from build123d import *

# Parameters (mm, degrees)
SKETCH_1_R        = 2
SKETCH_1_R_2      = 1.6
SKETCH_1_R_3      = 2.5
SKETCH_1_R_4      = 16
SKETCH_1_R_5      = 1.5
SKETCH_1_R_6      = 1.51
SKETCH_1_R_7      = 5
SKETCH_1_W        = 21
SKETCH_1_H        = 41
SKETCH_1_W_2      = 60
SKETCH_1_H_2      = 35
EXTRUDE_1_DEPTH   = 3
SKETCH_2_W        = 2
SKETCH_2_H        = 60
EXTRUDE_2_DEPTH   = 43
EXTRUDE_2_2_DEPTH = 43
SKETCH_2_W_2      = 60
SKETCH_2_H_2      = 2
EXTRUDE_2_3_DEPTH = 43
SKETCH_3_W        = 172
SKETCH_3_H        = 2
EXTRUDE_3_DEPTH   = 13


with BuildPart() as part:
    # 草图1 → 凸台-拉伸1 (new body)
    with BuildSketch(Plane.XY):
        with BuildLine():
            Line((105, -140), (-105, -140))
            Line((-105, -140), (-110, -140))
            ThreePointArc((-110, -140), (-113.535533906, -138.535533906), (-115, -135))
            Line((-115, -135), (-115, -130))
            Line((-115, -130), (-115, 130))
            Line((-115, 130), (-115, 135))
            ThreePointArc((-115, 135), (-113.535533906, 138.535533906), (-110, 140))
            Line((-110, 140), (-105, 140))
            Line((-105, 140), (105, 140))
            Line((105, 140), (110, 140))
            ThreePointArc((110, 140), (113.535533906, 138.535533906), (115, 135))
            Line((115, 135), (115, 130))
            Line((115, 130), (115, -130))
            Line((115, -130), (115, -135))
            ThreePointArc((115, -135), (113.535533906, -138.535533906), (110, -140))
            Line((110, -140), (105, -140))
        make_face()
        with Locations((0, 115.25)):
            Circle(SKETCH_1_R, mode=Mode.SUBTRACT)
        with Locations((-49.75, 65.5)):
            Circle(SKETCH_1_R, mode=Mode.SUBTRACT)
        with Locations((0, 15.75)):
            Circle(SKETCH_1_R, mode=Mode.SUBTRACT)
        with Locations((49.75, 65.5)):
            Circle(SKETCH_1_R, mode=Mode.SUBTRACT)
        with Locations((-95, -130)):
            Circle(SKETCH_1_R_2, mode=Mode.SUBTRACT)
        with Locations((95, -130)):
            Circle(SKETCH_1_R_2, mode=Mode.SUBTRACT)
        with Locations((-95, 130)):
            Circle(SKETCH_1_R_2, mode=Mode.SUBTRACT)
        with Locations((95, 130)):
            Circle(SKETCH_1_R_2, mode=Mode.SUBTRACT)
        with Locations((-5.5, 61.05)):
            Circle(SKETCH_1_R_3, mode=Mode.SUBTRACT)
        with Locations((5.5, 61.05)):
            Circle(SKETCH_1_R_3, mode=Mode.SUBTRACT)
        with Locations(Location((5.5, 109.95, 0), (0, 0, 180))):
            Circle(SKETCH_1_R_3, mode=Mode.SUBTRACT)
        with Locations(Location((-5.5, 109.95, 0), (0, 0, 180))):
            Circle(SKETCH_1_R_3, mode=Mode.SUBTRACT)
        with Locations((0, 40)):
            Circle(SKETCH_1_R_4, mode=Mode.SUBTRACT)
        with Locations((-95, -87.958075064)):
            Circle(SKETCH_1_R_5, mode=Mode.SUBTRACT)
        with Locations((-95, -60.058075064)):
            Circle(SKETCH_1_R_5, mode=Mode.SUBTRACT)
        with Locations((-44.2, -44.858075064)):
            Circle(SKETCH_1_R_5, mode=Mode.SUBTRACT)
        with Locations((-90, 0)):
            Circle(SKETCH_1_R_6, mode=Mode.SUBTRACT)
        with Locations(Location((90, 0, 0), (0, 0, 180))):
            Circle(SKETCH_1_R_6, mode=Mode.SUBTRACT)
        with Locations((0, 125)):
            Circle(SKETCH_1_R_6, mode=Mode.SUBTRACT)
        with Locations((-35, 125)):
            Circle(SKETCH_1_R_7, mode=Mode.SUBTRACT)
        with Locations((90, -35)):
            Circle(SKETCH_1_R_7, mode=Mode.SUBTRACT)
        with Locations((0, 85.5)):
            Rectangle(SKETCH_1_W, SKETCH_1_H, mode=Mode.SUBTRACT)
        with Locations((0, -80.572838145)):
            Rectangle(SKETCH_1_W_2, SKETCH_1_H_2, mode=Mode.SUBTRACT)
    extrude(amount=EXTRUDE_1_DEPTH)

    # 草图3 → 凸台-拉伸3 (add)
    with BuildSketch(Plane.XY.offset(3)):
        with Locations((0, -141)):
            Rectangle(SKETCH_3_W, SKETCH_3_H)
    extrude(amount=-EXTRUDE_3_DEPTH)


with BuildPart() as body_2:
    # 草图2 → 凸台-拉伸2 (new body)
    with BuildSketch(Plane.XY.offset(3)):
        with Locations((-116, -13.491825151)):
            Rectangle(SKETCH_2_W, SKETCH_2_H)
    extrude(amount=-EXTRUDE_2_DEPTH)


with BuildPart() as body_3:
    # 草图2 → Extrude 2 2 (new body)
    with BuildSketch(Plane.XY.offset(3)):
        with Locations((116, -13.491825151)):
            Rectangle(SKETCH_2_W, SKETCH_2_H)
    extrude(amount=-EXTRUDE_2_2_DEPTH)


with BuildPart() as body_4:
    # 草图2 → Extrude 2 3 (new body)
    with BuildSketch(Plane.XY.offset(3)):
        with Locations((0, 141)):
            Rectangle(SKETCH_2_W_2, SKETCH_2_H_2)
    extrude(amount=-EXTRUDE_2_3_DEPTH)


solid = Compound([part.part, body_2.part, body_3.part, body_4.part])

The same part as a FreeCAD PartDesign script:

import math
import FreeCAD as App
import Part
import Sketcher

doc = App.newDocument("Part")
params = doc.addObject("Spreadsheet::Sheet", "Params")
for row, (alias, value) in enumerate([
    ("sketch1_diameter", "10 mm"),
    ("sketch1_diameter2", "3 mm"),
    ("sketch1_diameter3", "4 mm"),
    ("sketch1_diameter4", "32 mm"),
    ("sketch1_diameter5", "5 mm"),
    ("pad1_length", "3 mm"),
    ("sketch2_width", "172 mm"),
    ("sketch2_height", "2 mm"),
    ("pad2_length", "13 mm"),
    ("sketch3_width", "2 mm"),
    ("sketch3_height", "60 mm"),
    ("pad3_length", "43 mm"),
    ("sketch4_width", "2 mm"),
    ("sketch4_height", "60 mm"),
    ("pad4_length", "43 mm"),
    ("sketch5_width", "60 mm"),
    ("sketch5_height", "2 mm"),
    ("pad5_length", "43 mm"),
], start=1):
    params.set(f"A{row}", alias)
    params.set(f"B{row}", "=" + value)
    params.setAlias(f"B{row}", alias)

body = doc.addObject("PartDesign::Body", "Body")

# Sketch on XY plane
sketch1 = body.newObject("Sketcher::SketchObject", "Sketch")
sketch1.AttachmentSupport = (doc.getObject("XY_Plane"), [""])
sketch1.MapMode = "FlatFace"
sketch1.addGeometry(Part.ArcOfCircle(Part.Circle(App.Vector(-110, -135, 0), App.Vector(0, 0, 1), 5), math.radians(180), math.radians(270)), False)
sketch1.addGeometry(Part.LineSegment(App.Vector(-110, -140, 0), App.Vector(110, -140, 0)), False)
sketch1.addGeometry(Part.ArcOfCircle(Part.Circle(App.Vector(110, -135, 0), App.Vector(0, 0, 1), 5), math.radians(-90), math.radians(0)), False)
sketch1.addGeometry(Part.LineSegment(App.Vector(115, -135, 0), App.Vector(115, 135, 0)), False)
sketch1.addGeometry(Part.ArcOfCircle(Part.Circle(App.Vector(110, 135, 0), App.Vector(0, 0, 1), 5), math.radians(0), math.radians(90)), False)
sketch1.addGeometry(Part.LineSegment(App.Vector(110, 140, 0), App.Vector(-110, 140, 0)), False)
sketch1.addGeometry(Part.ArcOfCircle(Part.Circle(App.Vector(-110, 135, 0), App.Vector(0, 0, 1), 5), math.radians(90), math.radians(180)), False)
sketch1.addGeometry(Part.LineSegment(App.Vector(-115, 135, 0), App.Vector(-115, -135, 0)), False)
sketch1.addGeometry(Part.Circle(App.Vector(95, -130, 0), App.Vector(0, 0, 1), 1.6), False)
sketch1.addGeometry(Part.LineSegment(App.Vector(-30, -98.072838, 0), App.Vector(-30, -63.072838, 0)), False)
sketch1.addGeometry(Part.LineSegment(App.Vector(-30, -63.072838, 0), App.Vector(30, -63.072838, 0)), False)
sketch1.addGeometry(Part.LineSegment(App.Vector(30, -63.072838, 0), App.Vector(30, -98.072838, 0)), False)
sketch1.addGeometry(Part.LineSegment(App.Vector(30, -98.072838, 0), App.Vector(-30, -98.072838, 0)), False)
sketch1.addGeometry(Part.Circle(App.Vector(90, -35, 0), App.Vector(0, 0, 1), 5), False)
sketch1.addGeometry(Part.Circle(App.Vector(-95, -130, 0), App.Vector(0, 0, 1), 1.6), False)
sketch1.addGeometry(Part.Circle(App.Vector(-95, -87.958075, 0), App.Vector(0, 0, 1), 1.5), False)
sketch1.addGeometry(Part.Circle(App.Vector(-44.2, -44.858075, 0), App.Vector(0, 0, 1), 1.5), False)
sketch1.addGeometry(Part.Circle(App.Vector(-95, -60.058075, 0), App.Vector(0, 0, 1), 1.5), False)
sketch1.addGeometry(Part.Circle(App.Vector(90, 0, 0), App.Vector(0, 0, 1), 1.51), False)
sketch1.addGeometry(Part.Circle(App.Vector(49.75, 65.5, 0), App.Vector(0, 0, 1), 2), False)
sketch1.addGeometry(Part.Circle(App.Vector(0, 15.75, 0), App.Vector(0, 0, 1), 2), False)
sketch1.addGeometry(Part.Circle(App.Vector(0, 40, 0), App.Vector(0, 0, 1), 16), False)
sketch1.addGeometry(Part.Circle(App.Vector(5.5, 61.05, 0), App.Vector(0, 0, 1), 2.5), False)
sketch1.addGeometry(Part.Circle(App.Vector(95, 130, 0), App.Vector(0, 0, 1), 1.6), False)
sketch1.addGeometry(Part.LineSegment(App.Vector(-10.5, 65, 0), App.Vector(-10.5, 106, 0)), False)
sketch1.addGeometry(Part.LineSegment(App.Vector(-10.5, 106, 0), App.Vector(10.5, 106, 0)), False)
sketch1.addGeometry(Part.LineSegment(App.Vector(10.5, 106, 0), App.Vector(10.5, 65, 0)), False)
sketch1.addGeometry(Part.LineSegment(App.Vector(10.5, 65, 0), App.Vector(-10.5, 65, 0)), False)
sketch1.addGeometry(Part.Circle(App.Vector(5.5, 109.95, 0), App.Vector(0, 0, 1), 2.5), False)
sketch1.addGeometry(Part.Circle(App.Vector(0, 115.25, 0), App.Vector(0, 0, 1), 2), False)
sketch1.addGeometry(Part.Circle(App.Vector(0, 125, 0), App.Vector(0, 0, 1), 1.51), False)
sketch1.addGeometry(Part.Circle(App.Vector(-5.5, 61.05, 0), App.Vector(0, 0, 1), 2.5), False)
sketch1.addGeometry(Part.Circle(App.Vector(-90, 0, 0), App.Vector(0, 0, 1), 1.51), False)
sketch1.addGeometry(Part.Circle(App.Vector(-49.75, 65.5, 0), App.Vector(0, 0, 1), 2), False)
sketch1.addGeometry(Part.Circle(App.Vector(-5.5, 109.95, 0), App.Vector(0, 0, 1), 2.5), False)
sketch1.addGeometry(Part.Circle(App.Vector(-35, 125, 0), App.Vector(0, 0, 1), 5), False)
sketch1.addGeometry(Part.Circle(App.Vector(-95, 130, 0), App.Vector(0, 0, 1), 1.6), False)
sketch1.addConstraint(Sketcher.Constraint("Tangent", 0, 2, 1, 1))
sketch1.addConstraint(Sketcher.Constraint("Tangent", 1, 2, 2, 1))
sketch1.addConstraint(Sketcher.Constraint("Tangent", 2, 2, 3, 1))
sketch1.addConstraint(Sketcher.Constraint("Tangent", 3, 2, 4, 1))
sketch1.addConstraint(Sketcher.Constraint("Tangent", 4, 2, 5, 1))
sketch1.addConstraint(Sketcher.Constraint("Tangent", 5, 2, 6, 1))
sketch1.addConstraint(Sketcher.Constraint("Tangent", 6, 2, 7, 1))
sketch1.addConstraint(Sketcher.Constraint("Tangent", 7, 2, 0, 1))
sketch1.addConstraint(Sketcher.Constraint("Coincident", 9, 2, 10, 1))
sketch1.addConstraint(Sketcher.Constraint("Coincident", 10, 2, 11, 1))
sketch1.addConstraint(Sketcher.Constraint("Coincident", 11, 2, 12, 1))
sketch1.addConstraint(Sketcher.Constraint("Coincident", 12, 2, 9, 1))
sketch1.addConstraint(Sketcher.Constraint("Coincident", 24, 2, 25, 1))
sketch1.addConstraint(Sketcher.Constraint("Coincident", 25, 2, 26, 1))
sketch1.addConstraint(Sketcher.Constraint("Coincident", 26, 2, 27, 1))
sketch1.addConstraint(Sketcher.Constraint("Coincident", 27, 2, 24, 1))
sketch1.addConstraint(Sketcher.Constraint("Horizontal", 1))
sketch1.addConstraint(Sketcher.Constraint("Vertical", 3))
sketch1.addConstraint(Sketcher.Constraint("Horizontal", 5))
sketch1.addConstraint(Sketcher.Constraint("Vertical", 7))
sketch1.addConstraint(Sketcher.Constraint("Vertical", 9))
sketch1.addConstraint(Sketcher.Constraint("Horizontal", 10))
sketch1.addConstraint(Sketcher.Constraint("Vertical", 11))
sketch1.addConstraint(Sketcher.Constraint("Horizontal", 12))
sketch1.addConstraint(Sketcher.Constraint("Vertical", 24))
sketch1.addConstraint(Sketcher.Constraint("Horizontal", 25))
sketch1.addConstraint(Sketcher.Constraint("Vertical", 26))
sketch1.addConstraint(Sketcher.Constraint("Horizontal", 27))
sketch1.addConstraint(Sketcher.Constraint("Equal", 0, 2))
sketch1.addConstraint(Sketcher.Constraint("Equal", 2, 4))
sketch1.addConstraint(Sketcher.Constraint("Equal", 4, 6))
sketch1.addConstraint(Sketcher.Constraint("Equal", 6, 13))
sketch1.addConstraint(Sketcher.Constraint("Equal", 8, 14))
sketch1.addConstraint(Sketcher.Constraint("Equal", 15, 16))
sketch1.addConstraint(Sketcher.Constraint("Equal", 16, 17))
sketch1.addConstraint(Sketcher.Constraint("Equal", 19, 20))
sketch1.addConstraint(Sketcher.Constraint("Equal", 14, 23))
sketch1.addConstraint(Sketcher.Constraint("Equal", 22, 28))
sketch1.addConstraint(Sketcher.Constraint("Equal", 20, 29))
sketch1.addConstraint(Sketcher.Constraint("Equal", 18, 30))
sketch1.addConstraint(Sketcher.Constraint("Equal", 28, 31))
sketch1.addConstraint(Sketcher.Constraint("Equal", 30, 32))
sketch1.addConstraint(Sketcher.Constraint("Equal", 29, 33))
sketch1.addConstraint(Sketcher.Constraint("Equal", 31, 34))
sketch1.addConstraint(Sketcher.Constraint("Equal", 13, 35))
sketch1.addConstraint(Sketcher.Constraint("Equal", 23, 36))
sketch1.addConstraint(Sketcher.Constraint("Symmetric", 0, 3, 4, 3, -1, 1))
sketch1.addConstraint(Sketcher.Constraint("Symmetric", 14, 3, 23, 3, -1, 1))
sketch1.addConstraint(Sketcher.Constraint("Symmetric", 18, 3, 32, 3, -1, 1))
sketch1.addConstraint(Sketcher.Constraint("Symmetric", 8, 3, 36, 3, -1, 1))
sketch1.addConstraint(Sketcher.Constraint("Symmetric", 8, 3, 14, 3, -2))
sketch1.addConstraint(Sketcher.Constraint("Symmetric", 22, 3, 31, 3, -2))
sketch1.addConstraint(Sketcher.Constraint("Symmetric", 19, 3, 33, 3, -2))
sketch1.addConstraint(Sketcher.Constraint("Symmetric", 28, 3, 34, 3, -2))
sketch1.addConstraint(Sketcher.Constraint("PointOnObject", 18, 3, -1))
sketch1.addConstraint(Sketcher.Constraint("PointOnObject", 20, 3, -2))
sketch1.addConstraint(Sketcher.Constraint("PointOnObject", 21, 3, -2))
sketch1.addConstraint(Sketcher.Constraint("PointOnObject", 29, 3, -2))
sketch1.addConstraint(Sketcher.Constraint("PointOnObject", 30, 3, -2))
sketch1.addConstraint(Sketcher.Constraint("Horizontal", 30, 3, 35, 3))
sketch1.addConstraint(Sketcher.Constraint("Vertical", 14, 3, 15, 3))
sketch1.addConstraint(Sketcher.Constraint("Vertical", 15, 3, 17, 3))
sketch1.addConstraint(Sketcher.Constraint("Vertical", 13, 3, 18, 3))
sketch1.addConstraint(Sketcher.Constraint("Vertical", 22, 3, 28, 3))
sketch1.addConstraint(Sketcher.Constraint("Diameter", 13, 10.0))
sketch1.addConstraint(Sketcher.Constraint("Diameter", 15, 3.0))
sketch1.addConstraint(Sketcher.Constraint("Diameter", 19, 4.0))
sketch1.addConstraint(Sketcher.Constraint("Diameter", 21, 32.0))
sketch1.addConstraint(Sketcher.Constraint("Diameter", 22, 5.0))
sketch1.addConstraint(Sketcher.Constraint("Diameter", 8, 3.2))
sketch1.addConstraint(Sketcher.Constraint("Diameter", 18, 3.02))
sketch1.addConstraint(Sketcher.Constraint("DistanceX", 1, 1, 1, 2, 220.0))
sketch1.addConstraint(Sketcher.Constraint("DistanceX", 10, 1, 10, 2, 60.0))
sketch1.addConstraint(Sketcher.Constraint("DistanceX", 25, 1, 25, 2, 21.0))
sketch1.addConstraint(Sketcher.Constraint("DistanceY", 3, 1, 3, 2, 270.0))
sketch1.addConstraint(Sketcher.Constraint("DistanceY", 9, 1, 9, 2, 35.0))
sketch1.addConstraint(Sketcher.Constraint("DistanceY", 24, 1, 24, 2, 41.0))
sketch1.addConstraint(Sketcher.Constraint("DistanceX", -1, 1, 8, 3, 95.0))
sketch1.addConstraint(Sketcher.Constraint("DistanceY", 8, 3, -1, 1, 130.0))
sketch1.addConstraint(Sketcher.Constraint("DistanceX", -1, 1, 13, 3, 90.0))
sketch1.addConstraint(Sketcher.Constraint("DistanceY", 13, 3, -1, 1, 35.0))
sketch1.addConstraint(Sketcher.Constraint("DistanceY", -1, 1, 21, 3, 40.0))
sketch1.addConstraint(Sketcher.Constraint("DistanceY", -1, 1, 30, 3, 125.0))
sketch1.addConstraint(Sketcher.Constraint("DistanceX", 35, 3, -1, 1, 35.0))
sketch1.addConstraint(Sketcher.Constraint("DistanceX", 9, 2, -1, 1, 30.0))
sketch1.addConstraint(Sketcher.Constraint("DistanceY", -1, 1, 24, 2, 106.0))
sketch1.addConstraint(Sketcher.Constraint("DistanceX", 31, 3, 22, 3, 11.0))
sketch1.addConstraint(Sketcher.Constraint("DistanceX", 24, 2, 34, 3, 5.0))
sketch1.addConstraint(Sketcher.Constraint("DistanceX", 16, 3, -1, 1, 44.2))
sketch1.addConstraint(Sketcher.Constraint("DistanceY", -1, 1, 19, 3, 65.5))
sketch1.addConstraint(Sketcher.Constraint("DistanceY", 15, 3, 16, 3, 43.1))
sketch1.addConstraint(Sketcher.Constraint("DistanceY", 15, 3, 17, 3, 27.9))
sketch1.addConstraint(Sketcher.Constraint("DistanceY", 20, 3, 22, 3, 45.3))
sketch1.addConstraint(Sketcher.Constraint("DistanceY", 22, 3, 28, 3, 48.9))
sketch1.addConstraint(Sketcher.Constraint("DistanceY", 28, 3, 29, 3, 5.3))
sketch1.addConstraint(Sketcher.Constraint("DistanceX", -1, 1, 19, 3, 49.75))
sketch1.addConstraint(Sketcher.Constraint("DistanceY", -1, 1, 20, 3, 15.75))
sketch1.addConstraint(Sketcher.Constraint("DistanceY", 9, 2, -1, 1, 63.072838))
sketch1.addConstraint(Sketcher.Constraint("DistanceY", 15, 3, -1, 1, 87.958075))
sketch1.setExpression("Constraints[64]", "Params.sketch1_diameter")
sketch1.setExpression("Constraints[65]", "Params.sketch1_diameter2")
sketch1.setExpression("Constraints[66]", "Params.sketch1_diameter3")
sketch1.setExpression("Constraints[67]", "Params.sketch1_diameter4")
sketch1.setExpression("Constraints[68]", "Params.sketch1_diameter5")
pad1 = body.newObject("PartDesign::Pad", "Pad")
pad1.Profile = sketch1
pad1.setExpression("Length", "Params.pad1_length")

# Sketch on XY plane
sketch2 = body.newObject("Sketcher::SketchObject", "Sketch001")
sketch2.AttachmentSupport = (doc.getObject("XY_Plane"), [""])
sketch2.MapMode = "FlatFace"
sketch2.AttachmentOffset = App.Placement(App.Vector(0, 0, 3), App.Rotation())
sketch2.addGeometry(Part.LineSegment(App.Vector(-86, -140, 0), App.Vector(-86, -142, 0)), False)
sketch2.addGeometry(Part.LineSegment(App.Vector(-86, -142, 0), App.Vector(86, -142, 0)), False)
sketch2.addGeometry(Part.LineSegment(App.Vector(86, -142, 0), App.Vector(86, -140, 0)), False)
sketch2.addGeometry(Part.LineSegment(App.Vector(86, -140, 0), App.Vector(-86, -140, 0)), False)
sketch2.addConstraint(Sketcher.Constraint("Coincident", 0, 2, 1, 1))
sketch2.addConstraint(Sketcher.Constraint("Coincident", 1, 2, 2, 1))
sketch2.addConstraint(Sketcher.Constraint("Coincident", 2, 2, 3, 1))
sketch2.addConstraint(Sketcher.Constraint("Coincident", 3, 2, 0, 1))
sketch2.addConstraint(Sketcher.Constraint("Vertical", 0))
sketch2.addConstraint(Sketcher.Constraint("Horizontal", 1))
sketch2.addConstraint(Sketcher.Constraint("Vertical", 2))
sketch2.addConstraint(Sketcher.Constraint("Horizontal", 3))
sketch2.addConstraint(Sketcher.Constraint("DistanceX", 1, 1, 1, 2, 172.0))
sketch2.addConstraint(Sketcher.Constraint("DistanceY", 0, 2, 0, 1, 2.0))
sketch2.addConstraint(Sketcher.Constraint("DistanceX", 0, 2, -1, 1, 86.0))
sketch2.addConstraint(Sketcher.Constraint("DistanceY", 0, 2, -1, 1, 142.0))
sketch2.setExpression("Constraints[8]", "Params.sketch2_width")
sketch2.setExpression("Constraints[9]", "Params.sketch2_height")
pad2 = body.newObject("PartDesign::Pad", "Pad001")
pad2.Profile = sketch2
pad2.setExpression("Length", "Params.pad2_length")
pad2.Reversed = True
body2 = doc.addObject("PartDesign::Body", "Body001")

# Sketch on XY plane
sketch3 = body2.newObject("Sketcher::SketchObject", "Sketch002")
sketch3.AttachmentSupport = (doc.getObject("XY_Plane001"), [""])
sketch3.MapMode = "FlatFace"
sketch3.AttachmentOffset = App.Placement(App.Vector(0, 0, 3), App.Rotation())
sketch3.addGeometry(Part.LineSegment(App.Vector(-117, 16.508175, 0), App.Vector(-117, -43.491825, 0)), False)
sketch3.addGeometry(Part.LineSegment(App.Vector(-117, -43.491825, 0), App.Vector(-115, -43.491825, 0)), False)
sketch3.addGeometry(Part.LineSegment(App.Vector(-115, -43.491825, 0), App.Vector(-115, 16.508175, 0)), False)
sketch3.addGeometry(Part.LineSegment(App.Vector(-115, 16.508175, 0), App.Vector(-117, 16.508175, 0)), False)
sketch3.addConstraint(Sketcher.Constraint("Coincident", 0, 2, 1, 1))
sketch3.addConstraint(Sketcher.Constraint("Coincident", 1, 2, 2, 1))
sketch3.addConstraint(Sketcher.Constraint("Coincident", 2, 2, 3, 1))
sketch3.addConstraint(Sketcher.Constraint("Coincident", 3, 2, 0, 1))
sketch3.addConstraint(Sketcher.Constraint("Vertical", 0))
sketch3.addConstraint(Sketcher.Constraint("Horizontal", 1))
sketch3.addConstraint(Sketcher.Constraint("Vertical", 2))
sketch3.addConstraint(Sketcher.Constraint("Horizontal", 3))
sketch3.addConstraint(Sketcher.Constraint("DistanceX", 1, 1, 1, 2, 2.0))
sketch3.addConstraint(Sketcher.Constraint("DistanceY", 0, 2, 0, 1, 60.0))
sketch3.addConstraint(Sketcher.Constraint("DistanceX", 0, 2, -1, 1, 117.0))
sketch3.addConstraint(Sketcher.Constraint("DistanceY", 0, 2, -1, 1, 43.491825))
sketch3.setExpression("Constraints[8]", "Params.sketch3_width")
sketch3.setExpression("Constraints[9]", "Params.sketch3_height")
pad3 = body2.newObject("PartDesign::Pad", "Pad002")
pad3.Profile = sketch3
pad3.setExpression("Length", "Params.pad3_length")
pad3.Reversed = True
body3 = doc.addObject("PartDesign::Body", "Body002")

# Sketch on XY plane
sketch4 = body3.newObject("Sketcher::SketchObject", "Sketch003")
sketch4.AttachmentSupport = (doc.getObject("XY_Plane002"), [""])
sketch4.MapMode = "FlatFace"
sketch4.AttachmentOffset = App.Placement(App.Vector(0, 0, 3), App.Rotation())
sketch4.addGeometry(Part.LineSegment(App.Vector(115, 16.508175, 0), App.Vector(115, -43.491825, 0)), False)
sketch4.addGeometry(Part.LineSegment(App.Vector(115, -43.491825, 0), App.Vector(117, -43.491825, 0)), False)
sketch4.addGeometry(Part.LineSegment(App.Vector(117, -43.491825, 0), App.Vector(117, 16.508175, 0)), False)
sketch4.addGeometry(Part.LineSegment(App.Vector(117, 16.508175, 0), App.Vector(115, 16.508175, 0)), False)
sketch4.addConstraint(Sketcher.Constraint("Coincident", 0, 2, 1, 1))
sketch4.addConstraint(Sketcher.Constraint("Coincident", 1, 2, 2, 1))
sketch4.addConstraint(Sketcher.Constraint("Coincident", 2, 2, 3, 1))
sketch4.addConstraint(Sketcher.Constraint("Coincident", 3, 2, 0, 1))
sketch4.addConstraint(Sketcher.Constraint("Vertical", 0))
sketch4.addConstraint(Sketcher.Constraint("Horizontal", 1))
sketch4.addConstraint(Sketcher.Constraint("Vertical", 2))
sketch4.addConstraint(Sketcher.Constraint("Horizontal", 3))
sketch4.addConstraint(Sketcher.Constraint("DistanceX", 1, 1, 1, 2, 2.0))
sketch4.addConstraint(Sketcher.Constraint("DistanceY", 0, 2, 0, 1, 60.0))
sketch4.addConstraint(Sketcher.Constraint("DistanceX", -1, 1, 0, 2, 115.0))
sketch4.addConstraint(Sketcher.Constraint("DistanceY", 0, 2, -1, 1, 43.491825))
sketch4.setExpression("Constraints[8]", "Params.sketch4_width")
sketch4.setExpression("Constraints[9]", "Params.sketch4_height")
pad4 = body3.newObject("PartDesign::Pad", "Pad003")
pad4.Profile = sketch4
pad4.setExpression("Length", "Params.pad4_length")
pad4.Reversed = True
body4 = doc.addObject("PartDesign::Body", "Body003")

# Sketch on XY plane
sketch5 = body4.newObject("Sketcher::SketchObject", "Sketch004")
sketch5.AttachmentSupport = (doc.getObject("XY_Plane003"), [""])
sketch5.MapMode = "FlatFace"
sketch5.AttachmentOffset = App.Placement(App.Vector(0, 0, 3), App.Rotation())
sketch5.addGeometry(Part.LineSegment(App.Vector(-30, 142, 0), App.Vector(-30, 140, 0)), False)
sketch5.addGeometry(Part.LineSegment(App.Vector(-30, 140, 0), App.Vector(30, 140, 0)), False)
sketch5.addGeometry(Part.LineSegment(App.Vector(30, 140, 0), App.Vector(30, 142, 0)), False)
sketch5.addGeometry(Part.LineSegment(App.Vector(30, 142, 0), App.Vector(-30, 142, 0)), False)
sketch5.addConstraint(Sketcher.Constraint("Coincident", 0, 2, 1, 1))
sketch5.addConstraint(Sketcher.Constraint("Coincident", 1, 2, 2, 1))
sketch5.addConstraint(Sketcher.Constraint("Coincident", 2, 2, 3, 1))
sketch5.addConstraint(Sketcher.Constraint("Coincident", 3, 2, 0, 1))
sketch5.addConstraint(Sketcher.Constraint("Vertical", 0))
sketch5.addConstraint(Sketcher.Constraint("Horizontal", 1))
sketch5.addConstraint(Sketcher.Constraint("Vertical", 2))
sketch5.addConstraint(Sketcher.Constraint("Horizontal", 3))
sketch5.addConstraint(Sketcher.Constraint("DistanceX", 1, 1, 1, 2, 60.0))
sketch5.addConstraint(Sketcher.Constraint("DistanceY", 0, 2, 0, 1, 2.0))
sketch5.addConstraint(Sketcher.Constraint("DistanceX", 0, 2, -1, 1, 30.0))
sketch5.addConstraint(Sketcher.Constraint("DistanceY", -1, 1, 0, 2, 140.0))
sketch5.setExpression("Constraints[8]", "Params.sketch5_width")
sketch5.setExpression("Constraints[9]", "Params.sketch5_height")
pad5 = body4.newObject("PartDesign::Pad", "Pad004")
pad5.Profile = sketch5
pad5.setExpression("Length", "Params.pad5_length")
pad5.Reversed = True

doc.recompute()
